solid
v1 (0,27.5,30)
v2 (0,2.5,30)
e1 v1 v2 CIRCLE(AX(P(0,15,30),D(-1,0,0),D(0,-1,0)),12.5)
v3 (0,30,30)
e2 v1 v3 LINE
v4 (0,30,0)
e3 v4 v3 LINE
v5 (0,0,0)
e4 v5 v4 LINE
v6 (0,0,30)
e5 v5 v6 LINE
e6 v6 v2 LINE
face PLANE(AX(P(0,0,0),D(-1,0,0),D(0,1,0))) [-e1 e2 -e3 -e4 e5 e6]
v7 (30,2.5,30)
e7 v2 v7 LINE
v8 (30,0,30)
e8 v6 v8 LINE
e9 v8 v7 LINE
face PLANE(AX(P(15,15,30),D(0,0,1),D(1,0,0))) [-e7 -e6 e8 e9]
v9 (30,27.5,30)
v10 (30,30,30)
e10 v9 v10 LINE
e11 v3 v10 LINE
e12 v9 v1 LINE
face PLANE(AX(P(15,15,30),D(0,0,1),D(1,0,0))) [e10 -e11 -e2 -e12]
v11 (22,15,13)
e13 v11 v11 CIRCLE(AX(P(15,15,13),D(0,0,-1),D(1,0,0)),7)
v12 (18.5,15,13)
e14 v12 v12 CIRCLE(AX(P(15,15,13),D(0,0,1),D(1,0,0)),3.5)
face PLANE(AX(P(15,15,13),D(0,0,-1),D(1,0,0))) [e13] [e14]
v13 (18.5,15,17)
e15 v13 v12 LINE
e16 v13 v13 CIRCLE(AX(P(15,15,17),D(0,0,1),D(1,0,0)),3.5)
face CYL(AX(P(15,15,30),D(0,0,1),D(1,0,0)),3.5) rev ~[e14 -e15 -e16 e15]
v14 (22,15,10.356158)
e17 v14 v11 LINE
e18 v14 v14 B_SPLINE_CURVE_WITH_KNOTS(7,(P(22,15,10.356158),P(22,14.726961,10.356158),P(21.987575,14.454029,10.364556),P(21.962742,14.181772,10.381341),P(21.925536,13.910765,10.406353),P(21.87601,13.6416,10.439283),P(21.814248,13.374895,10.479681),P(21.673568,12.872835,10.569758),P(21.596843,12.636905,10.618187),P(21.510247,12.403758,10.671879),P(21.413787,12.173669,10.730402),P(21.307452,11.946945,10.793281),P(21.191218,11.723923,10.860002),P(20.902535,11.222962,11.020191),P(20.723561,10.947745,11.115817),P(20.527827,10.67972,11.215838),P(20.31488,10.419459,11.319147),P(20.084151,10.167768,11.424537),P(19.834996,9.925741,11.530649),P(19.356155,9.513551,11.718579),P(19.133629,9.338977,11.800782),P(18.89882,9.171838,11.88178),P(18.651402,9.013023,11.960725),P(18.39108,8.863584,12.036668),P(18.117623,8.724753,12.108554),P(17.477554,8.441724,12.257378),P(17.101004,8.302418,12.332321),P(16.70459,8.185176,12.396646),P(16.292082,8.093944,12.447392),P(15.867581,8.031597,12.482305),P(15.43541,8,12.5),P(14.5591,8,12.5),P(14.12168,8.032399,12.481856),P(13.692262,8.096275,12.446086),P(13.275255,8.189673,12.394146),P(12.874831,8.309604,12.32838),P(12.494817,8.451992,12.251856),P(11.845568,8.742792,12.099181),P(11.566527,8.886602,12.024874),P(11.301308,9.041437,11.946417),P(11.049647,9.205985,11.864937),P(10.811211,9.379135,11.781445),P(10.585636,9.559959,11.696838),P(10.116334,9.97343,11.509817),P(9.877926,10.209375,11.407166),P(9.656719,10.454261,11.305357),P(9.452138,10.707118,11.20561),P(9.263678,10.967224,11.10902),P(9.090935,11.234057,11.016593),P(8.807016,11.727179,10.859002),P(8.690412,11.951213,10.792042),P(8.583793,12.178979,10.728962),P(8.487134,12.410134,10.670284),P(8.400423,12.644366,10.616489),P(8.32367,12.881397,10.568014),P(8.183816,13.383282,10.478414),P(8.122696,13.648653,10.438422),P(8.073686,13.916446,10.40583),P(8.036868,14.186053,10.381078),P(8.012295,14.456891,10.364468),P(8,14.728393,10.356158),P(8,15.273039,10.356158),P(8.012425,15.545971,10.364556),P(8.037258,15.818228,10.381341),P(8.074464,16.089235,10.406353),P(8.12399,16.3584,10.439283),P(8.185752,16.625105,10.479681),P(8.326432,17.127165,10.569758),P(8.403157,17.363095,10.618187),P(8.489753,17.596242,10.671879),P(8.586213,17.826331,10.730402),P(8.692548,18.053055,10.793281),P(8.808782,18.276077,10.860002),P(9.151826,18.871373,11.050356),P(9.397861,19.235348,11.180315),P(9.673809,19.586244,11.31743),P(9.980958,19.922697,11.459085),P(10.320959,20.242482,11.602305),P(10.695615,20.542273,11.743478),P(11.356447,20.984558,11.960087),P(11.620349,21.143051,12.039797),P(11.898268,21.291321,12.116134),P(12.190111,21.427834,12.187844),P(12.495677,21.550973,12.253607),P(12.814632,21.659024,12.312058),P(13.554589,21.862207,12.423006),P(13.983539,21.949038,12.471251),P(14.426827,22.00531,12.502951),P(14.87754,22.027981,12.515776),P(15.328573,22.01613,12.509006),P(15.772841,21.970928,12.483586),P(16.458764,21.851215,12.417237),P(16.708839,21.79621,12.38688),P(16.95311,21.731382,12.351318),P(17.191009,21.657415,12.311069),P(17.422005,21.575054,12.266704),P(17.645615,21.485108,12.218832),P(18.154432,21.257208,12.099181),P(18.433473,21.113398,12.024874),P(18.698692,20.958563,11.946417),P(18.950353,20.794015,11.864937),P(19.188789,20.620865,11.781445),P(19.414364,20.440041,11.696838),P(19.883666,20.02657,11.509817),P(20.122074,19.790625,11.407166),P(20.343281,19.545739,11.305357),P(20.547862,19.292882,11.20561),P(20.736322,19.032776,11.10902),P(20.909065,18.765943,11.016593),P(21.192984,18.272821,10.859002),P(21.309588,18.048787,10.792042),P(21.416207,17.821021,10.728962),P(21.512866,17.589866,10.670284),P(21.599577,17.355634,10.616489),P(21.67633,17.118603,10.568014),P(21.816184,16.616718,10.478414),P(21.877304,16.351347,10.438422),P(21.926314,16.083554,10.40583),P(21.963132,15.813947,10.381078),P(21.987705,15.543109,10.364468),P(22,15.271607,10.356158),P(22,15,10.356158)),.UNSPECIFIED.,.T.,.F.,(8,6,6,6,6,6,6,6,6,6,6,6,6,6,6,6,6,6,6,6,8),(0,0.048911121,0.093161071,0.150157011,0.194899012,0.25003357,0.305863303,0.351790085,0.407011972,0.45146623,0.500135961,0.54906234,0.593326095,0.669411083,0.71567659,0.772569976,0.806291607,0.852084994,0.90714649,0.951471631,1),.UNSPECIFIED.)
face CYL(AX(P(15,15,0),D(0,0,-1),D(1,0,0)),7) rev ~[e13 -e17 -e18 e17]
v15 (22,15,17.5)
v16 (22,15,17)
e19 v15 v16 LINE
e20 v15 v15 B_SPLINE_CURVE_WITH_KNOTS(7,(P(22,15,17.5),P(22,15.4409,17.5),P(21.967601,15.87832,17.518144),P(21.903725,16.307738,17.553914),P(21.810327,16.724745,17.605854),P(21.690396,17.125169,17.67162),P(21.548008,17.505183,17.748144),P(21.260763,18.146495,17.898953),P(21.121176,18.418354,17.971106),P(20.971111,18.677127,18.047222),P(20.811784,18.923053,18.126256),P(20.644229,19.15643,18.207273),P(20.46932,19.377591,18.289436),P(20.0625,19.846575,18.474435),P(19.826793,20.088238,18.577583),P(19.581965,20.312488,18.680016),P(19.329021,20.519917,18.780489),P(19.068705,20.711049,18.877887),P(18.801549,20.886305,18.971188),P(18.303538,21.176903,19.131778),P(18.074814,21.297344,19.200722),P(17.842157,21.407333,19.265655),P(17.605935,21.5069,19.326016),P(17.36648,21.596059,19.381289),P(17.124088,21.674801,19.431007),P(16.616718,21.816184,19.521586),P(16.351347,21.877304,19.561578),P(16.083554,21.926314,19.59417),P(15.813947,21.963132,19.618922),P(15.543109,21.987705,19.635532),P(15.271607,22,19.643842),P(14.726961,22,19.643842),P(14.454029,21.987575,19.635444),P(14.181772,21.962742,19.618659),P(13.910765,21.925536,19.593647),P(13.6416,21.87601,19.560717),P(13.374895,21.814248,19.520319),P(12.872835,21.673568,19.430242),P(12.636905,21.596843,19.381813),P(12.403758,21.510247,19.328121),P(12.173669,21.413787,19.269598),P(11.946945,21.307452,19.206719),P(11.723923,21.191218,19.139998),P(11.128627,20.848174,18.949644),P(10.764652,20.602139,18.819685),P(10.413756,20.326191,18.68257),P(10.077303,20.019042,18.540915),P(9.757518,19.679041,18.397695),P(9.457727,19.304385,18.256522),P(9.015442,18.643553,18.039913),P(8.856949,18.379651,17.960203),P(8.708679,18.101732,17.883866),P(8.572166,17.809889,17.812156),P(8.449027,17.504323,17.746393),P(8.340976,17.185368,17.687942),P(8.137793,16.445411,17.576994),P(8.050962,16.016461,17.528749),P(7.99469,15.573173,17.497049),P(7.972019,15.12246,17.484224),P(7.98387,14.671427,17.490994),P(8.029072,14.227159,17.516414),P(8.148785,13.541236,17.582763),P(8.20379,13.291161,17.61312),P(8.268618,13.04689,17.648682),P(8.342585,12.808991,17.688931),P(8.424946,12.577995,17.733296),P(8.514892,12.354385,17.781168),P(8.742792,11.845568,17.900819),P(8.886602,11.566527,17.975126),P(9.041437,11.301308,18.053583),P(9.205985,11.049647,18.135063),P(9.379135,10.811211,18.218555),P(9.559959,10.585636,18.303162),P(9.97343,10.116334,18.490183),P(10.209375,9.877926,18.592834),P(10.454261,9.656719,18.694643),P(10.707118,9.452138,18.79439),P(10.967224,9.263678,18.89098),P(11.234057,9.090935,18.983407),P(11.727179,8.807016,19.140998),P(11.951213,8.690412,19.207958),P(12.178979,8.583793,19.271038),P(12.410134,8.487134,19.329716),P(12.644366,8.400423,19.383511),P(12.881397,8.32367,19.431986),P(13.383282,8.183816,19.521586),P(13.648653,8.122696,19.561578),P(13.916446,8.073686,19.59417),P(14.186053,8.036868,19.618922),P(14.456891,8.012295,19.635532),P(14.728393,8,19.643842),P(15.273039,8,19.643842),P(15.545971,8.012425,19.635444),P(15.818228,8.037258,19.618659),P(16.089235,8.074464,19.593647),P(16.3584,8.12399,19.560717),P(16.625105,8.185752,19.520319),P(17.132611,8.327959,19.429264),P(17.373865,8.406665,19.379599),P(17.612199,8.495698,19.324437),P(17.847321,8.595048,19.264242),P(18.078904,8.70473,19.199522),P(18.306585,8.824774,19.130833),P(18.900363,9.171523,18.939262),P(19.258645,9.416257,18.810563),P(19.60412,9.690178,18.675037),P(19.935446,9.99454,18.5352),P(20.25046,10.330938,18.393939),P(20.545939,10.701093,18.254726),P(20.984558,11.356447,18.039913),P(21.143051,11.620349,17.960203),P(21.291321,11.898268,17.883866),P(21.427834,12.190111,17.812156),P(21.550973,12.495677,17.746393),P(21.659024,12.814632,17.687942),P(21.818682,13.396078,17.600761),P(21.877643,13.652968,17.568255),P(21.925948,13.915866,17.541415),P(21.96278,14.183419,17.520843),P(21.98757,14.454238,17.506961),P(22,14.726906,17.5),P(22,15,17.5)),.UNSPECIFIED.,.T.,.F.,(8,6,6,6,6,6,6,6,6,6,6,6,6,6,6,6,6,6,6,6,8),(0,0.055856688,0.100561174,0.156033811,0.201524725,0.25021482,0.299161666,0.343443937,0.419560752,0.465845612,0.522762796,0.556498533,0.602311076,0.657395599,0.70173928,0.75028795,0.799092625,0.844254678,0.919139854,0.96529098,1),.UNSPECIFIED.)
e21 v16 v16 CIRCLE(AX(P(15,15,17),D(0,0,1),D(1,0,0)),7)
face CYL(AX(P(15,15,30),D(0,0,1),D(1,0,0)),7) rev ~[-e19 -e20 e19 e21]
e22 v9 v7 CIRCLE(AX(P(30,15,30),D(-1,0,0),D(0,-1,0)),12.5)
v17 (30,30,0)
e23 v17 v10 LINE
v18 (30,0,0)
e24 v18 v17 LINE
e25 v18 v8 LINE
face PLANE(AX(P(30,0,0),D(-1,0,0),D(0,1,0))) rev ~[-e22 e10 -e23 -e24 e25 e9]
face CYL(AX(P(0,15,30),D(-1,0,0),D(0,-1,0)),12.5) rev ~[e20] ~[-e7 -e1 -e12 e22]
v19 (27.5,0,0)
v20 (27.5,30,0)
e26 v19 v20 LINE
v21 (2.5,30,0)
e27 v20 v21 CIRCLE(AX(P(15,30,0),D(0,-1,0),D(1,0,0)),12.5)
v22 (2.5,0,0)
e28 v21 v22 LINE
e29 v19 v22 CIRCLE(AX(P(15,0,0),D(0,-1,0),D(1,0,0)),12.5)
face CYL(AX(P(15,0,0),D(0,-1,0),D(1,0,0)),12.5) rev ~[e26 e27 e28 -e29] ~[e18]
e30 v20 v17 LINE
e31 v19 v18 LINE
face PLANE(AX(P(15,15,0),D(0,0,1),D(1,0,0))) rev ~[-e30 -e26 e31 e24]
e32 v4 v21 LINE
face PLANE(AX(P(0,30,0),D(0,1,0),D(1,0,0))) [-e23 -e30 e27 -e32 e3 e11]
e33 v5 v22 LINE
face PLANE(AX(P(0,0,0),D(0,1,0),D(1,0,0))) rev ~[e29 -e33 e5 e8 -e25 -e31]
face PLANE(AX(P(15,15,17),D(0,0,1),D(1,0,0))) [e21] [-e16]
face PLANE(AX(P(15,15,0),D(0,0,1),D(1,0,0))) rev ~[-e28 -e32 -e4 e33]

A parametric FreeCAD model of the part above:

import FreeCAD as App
import Part
import Sketcher

doc = App.newDocument("Part")
params = doc.addObject("Spreadsheet::Sheet", "Params")
for row, (alias, value) in enumerate([
    ("sketch1_width", "30 mm"),
    ("pad1_length", "30 mm"),
    ("sketch2_diameter", "7 mm"),
    ("sketch3_diameter", "14 mm"),
    ("pocket2_length", "13 mm"),
    ("sketch4_diameter", "14 mm"),
    ("pocket3_length", "13 mm"),
    ("sketch5_diameter", "25 mm"),
    ("sketch6_diameter", "25 mm"),
], start=1):
    params.set(f"A{row}", alias)
    params.set(f"B{row}", "=" + value)
    params.setAlias(f"B{row}", alias)

body = doc.addObject("PartDesign::Body", "Body")

# Sketch on XY plane
sketch1 = body.newObject("Sketcher::SketchObject", "Sketch")
sketch1.AttachmentSupport = (doc.getObject("XY_Plane"), [""])
sketch1.MapMode = "FlatFace"
sketch1.addGeometry([
    Part.LineSegment(App.Vector(0, 30, 0), App.Vector(0, 0, 0)),
    Part.LineSegment(App.Vector(0, 0, 0), App.Vector(30, 0, 0)),
    Part.LineSegment(App.Vector(30, 0, 0), App.Vector(30, 30, 0)),
    Part.LineSegment(App.Vector(30, 30, 0), App.Vector(0, 30, 0)),
], False)
sketch1.addConstraint([
    Sketcher.Constraint("Coincident", 0, 2, 1, 1),
    Sketcher.Constraint("Coincident", 1, 2, 2, 1),
    Sketcher.Constraint("Coincident", 2, 2, 3, 1),
    Sketcher.Constraint("Coincident", 3, 2, 0, 1),
    Sketcher.Constraint("Vertical", 0),
    Sketcher.Constraint("Horizontal", 1),
    Sketcher.Constraint("Vertical", 2),
    Sketcher.Constraint("Horizontal", 3),
    Sketcher.Constraint("Coincident", 0, 2, -1, 1),
    Sketcher.Constraint("Equal", 3, 0),
    Sketcher.Constraint("DistanceX", 1, 1, 1, 2, 30.0),
])
sketch1.setExpression("Constraints[10]", "Params.sketch1_width")
pad1 = body.newObject("PartDesign::Pad", "Pad")
pad1.Profile = sketch1
pad1.setExpression("Length", "Params.pad1_length")

# Sketch on XY plane
sketch2 = body.newObject("Sketcher::SketchObject", "Sketch001")
sketch2.AttachmentSupport = (doc.getObject("XY_Plane"), [""])
sketch2.MapMode = "FlatFace"
sketch2.AttachmentOffset = App.Placement(App.Vector(0, 0, 30), App.Rotation())
sketch2.addGeometry(Part.Circle(App.Vector(15, 15, 0), App.Vector(0, 0, 1), 3.5), False)
sketch2.addConstraint([
    Sketcher.Constraint("Diameter", 0, 7.0),
    Sketcher.Constraint("DistanceX", -1, 1, 0, 3, 15.0),
    Sketcher.Constraint("DistanceY", -1, 1, 0, 3, 15.0),
])
sketch2.setExpression("Constraints[0]", "Params.sketch2_diameter")
pocket1 = body.newObject("PartDesign::Pocket", "Pocket")
pocket1.Profile = sketch2
pocket1.Type = "ThroughAll"

# Sketch on XY plane
sketch3 = body.newObject("Sketcher::SketchObject", "Sketch002")
sketch3.AttachmentSupport = (doc.getObject("XY_Plane"), [""])
sketch3.MapMode = "FlatFace"
sketch3.AttachmentOffset = App.Placement(App.Vector(0, 0, 30), App.Rotation())
sketch3.addGeometry(Part.Circle(App.Vector(15, 15, 0), App.Vector(0, 0, 1), 7), False)
sketch3.addConstraint([
    Sketcher.Constraint("Diameter", 0, 14.0),
    Sketcher.Constraint("DistanceX", -1, 1, 0, 3, 15.0),
    Sketcher.Constraint("DistanceY", -1, 1, 0, 3, 15.0),
])
sketch3.setExpression("Constraints[0]", "Params.sketch3_diameter")
pocket2 = body.newObject("PartDesign::Pocket", "Pocket001")
pocket2.Profile = sketch3
pocket2.setExpression("Length", "Params.pocket2_length")

# Sketch on XY plane
sketch4 = body.newObject("Sketcher::SketchObject", "Sketch003")
sketch4.AttachmentSupport = (doc.getObject("XY_Plane"), [""])
sketch4.MapMode = "FlatFace"
sketch4.addGeometry(Part.Circle(App.Vector(15, 15, 0), App.Vector(0, 0, 1), 7), False)
sketch4.addConstraint([
    Sketcher.Constraint("Diameter", 0, 14.0),
    Sketcher.Constraint("DistanceX", -1, 1, 0, 3, 15.0),
    Sketcher.Constraint("DistanceY", -1, 1, 0, 3, 15.0),
])
sketch4.setExpression("Constraints[0]", "Params.sketch4_diameter")
pocket3 = body.newObject("PartDesign::Pocket", "Pocket002")
pocket3.Profile = sketch4
pocket3.setExpression("Length", "Params.pocket3_length")
pocket3.Reversed = True

# Sketch on YZ plane
sketch5 = body.newObject("Sketcher::SketchObject", "Sketch004")
sketch5.AttachmentSupport = (doc.getObject("YZ_Plane"), [""])
sketch5.MapMode = "FlatFace"
sketch5.addGeometry(Part.Circle(App.Vector(15, 30, 0), App.Vector(0, 0, 1), 12), False)
sketch5.addConstraint([
    Sketcher.Constraint("Diameter", 0, 25.0),
    Sketcher.Constraint("DistanceX", -1, 1, 0, 3, 15.0),
    Sketcher.Constraint("DistanceY", -1, 1, 0, 3, 30.0),
])
sketch5.setExpression("Constraints[0]", "Params.sketch5_diameter")
pocket4 = body.newObject("PartDesign::Pocket", "Pocket003")
pocket4.Profile = sketch5
pocket4.Type = "ThroughAll"
pocket4.Reversed = True

# Sketch on XZ plane
sketch6 = body.newObject("Sketcher::SketchObject", "Sketch005")
sketch6.AttachmentSupport = (doc.getObject("XZ_Plane"), [""])
sketch6.MapMode = "FlatFace"
sketch6.addGeometry(Part.Circle(App.Vector(15, 0, 0), App.Vector(0, 0, 1), 12), False)
sketch6.addConstraint([
    Sketcher.Constraint("PointOnObject", 0, 3, -1),
    Sketcher.Constraint("Diameter", 0, 25.0),
    Sketcher.Constraint("DistanceX", -1, 1, 0, 3, 15.0),
])
sketch6.setExpression("Constraints[1]", "Params.sketch6_diameter")
pocket5 = body.newObject("PartDesign::Pocket", "Pocket004")
pocket5.Profile = sketch6
pocket5.Type = "ThroughAll"

doc.recompute()
